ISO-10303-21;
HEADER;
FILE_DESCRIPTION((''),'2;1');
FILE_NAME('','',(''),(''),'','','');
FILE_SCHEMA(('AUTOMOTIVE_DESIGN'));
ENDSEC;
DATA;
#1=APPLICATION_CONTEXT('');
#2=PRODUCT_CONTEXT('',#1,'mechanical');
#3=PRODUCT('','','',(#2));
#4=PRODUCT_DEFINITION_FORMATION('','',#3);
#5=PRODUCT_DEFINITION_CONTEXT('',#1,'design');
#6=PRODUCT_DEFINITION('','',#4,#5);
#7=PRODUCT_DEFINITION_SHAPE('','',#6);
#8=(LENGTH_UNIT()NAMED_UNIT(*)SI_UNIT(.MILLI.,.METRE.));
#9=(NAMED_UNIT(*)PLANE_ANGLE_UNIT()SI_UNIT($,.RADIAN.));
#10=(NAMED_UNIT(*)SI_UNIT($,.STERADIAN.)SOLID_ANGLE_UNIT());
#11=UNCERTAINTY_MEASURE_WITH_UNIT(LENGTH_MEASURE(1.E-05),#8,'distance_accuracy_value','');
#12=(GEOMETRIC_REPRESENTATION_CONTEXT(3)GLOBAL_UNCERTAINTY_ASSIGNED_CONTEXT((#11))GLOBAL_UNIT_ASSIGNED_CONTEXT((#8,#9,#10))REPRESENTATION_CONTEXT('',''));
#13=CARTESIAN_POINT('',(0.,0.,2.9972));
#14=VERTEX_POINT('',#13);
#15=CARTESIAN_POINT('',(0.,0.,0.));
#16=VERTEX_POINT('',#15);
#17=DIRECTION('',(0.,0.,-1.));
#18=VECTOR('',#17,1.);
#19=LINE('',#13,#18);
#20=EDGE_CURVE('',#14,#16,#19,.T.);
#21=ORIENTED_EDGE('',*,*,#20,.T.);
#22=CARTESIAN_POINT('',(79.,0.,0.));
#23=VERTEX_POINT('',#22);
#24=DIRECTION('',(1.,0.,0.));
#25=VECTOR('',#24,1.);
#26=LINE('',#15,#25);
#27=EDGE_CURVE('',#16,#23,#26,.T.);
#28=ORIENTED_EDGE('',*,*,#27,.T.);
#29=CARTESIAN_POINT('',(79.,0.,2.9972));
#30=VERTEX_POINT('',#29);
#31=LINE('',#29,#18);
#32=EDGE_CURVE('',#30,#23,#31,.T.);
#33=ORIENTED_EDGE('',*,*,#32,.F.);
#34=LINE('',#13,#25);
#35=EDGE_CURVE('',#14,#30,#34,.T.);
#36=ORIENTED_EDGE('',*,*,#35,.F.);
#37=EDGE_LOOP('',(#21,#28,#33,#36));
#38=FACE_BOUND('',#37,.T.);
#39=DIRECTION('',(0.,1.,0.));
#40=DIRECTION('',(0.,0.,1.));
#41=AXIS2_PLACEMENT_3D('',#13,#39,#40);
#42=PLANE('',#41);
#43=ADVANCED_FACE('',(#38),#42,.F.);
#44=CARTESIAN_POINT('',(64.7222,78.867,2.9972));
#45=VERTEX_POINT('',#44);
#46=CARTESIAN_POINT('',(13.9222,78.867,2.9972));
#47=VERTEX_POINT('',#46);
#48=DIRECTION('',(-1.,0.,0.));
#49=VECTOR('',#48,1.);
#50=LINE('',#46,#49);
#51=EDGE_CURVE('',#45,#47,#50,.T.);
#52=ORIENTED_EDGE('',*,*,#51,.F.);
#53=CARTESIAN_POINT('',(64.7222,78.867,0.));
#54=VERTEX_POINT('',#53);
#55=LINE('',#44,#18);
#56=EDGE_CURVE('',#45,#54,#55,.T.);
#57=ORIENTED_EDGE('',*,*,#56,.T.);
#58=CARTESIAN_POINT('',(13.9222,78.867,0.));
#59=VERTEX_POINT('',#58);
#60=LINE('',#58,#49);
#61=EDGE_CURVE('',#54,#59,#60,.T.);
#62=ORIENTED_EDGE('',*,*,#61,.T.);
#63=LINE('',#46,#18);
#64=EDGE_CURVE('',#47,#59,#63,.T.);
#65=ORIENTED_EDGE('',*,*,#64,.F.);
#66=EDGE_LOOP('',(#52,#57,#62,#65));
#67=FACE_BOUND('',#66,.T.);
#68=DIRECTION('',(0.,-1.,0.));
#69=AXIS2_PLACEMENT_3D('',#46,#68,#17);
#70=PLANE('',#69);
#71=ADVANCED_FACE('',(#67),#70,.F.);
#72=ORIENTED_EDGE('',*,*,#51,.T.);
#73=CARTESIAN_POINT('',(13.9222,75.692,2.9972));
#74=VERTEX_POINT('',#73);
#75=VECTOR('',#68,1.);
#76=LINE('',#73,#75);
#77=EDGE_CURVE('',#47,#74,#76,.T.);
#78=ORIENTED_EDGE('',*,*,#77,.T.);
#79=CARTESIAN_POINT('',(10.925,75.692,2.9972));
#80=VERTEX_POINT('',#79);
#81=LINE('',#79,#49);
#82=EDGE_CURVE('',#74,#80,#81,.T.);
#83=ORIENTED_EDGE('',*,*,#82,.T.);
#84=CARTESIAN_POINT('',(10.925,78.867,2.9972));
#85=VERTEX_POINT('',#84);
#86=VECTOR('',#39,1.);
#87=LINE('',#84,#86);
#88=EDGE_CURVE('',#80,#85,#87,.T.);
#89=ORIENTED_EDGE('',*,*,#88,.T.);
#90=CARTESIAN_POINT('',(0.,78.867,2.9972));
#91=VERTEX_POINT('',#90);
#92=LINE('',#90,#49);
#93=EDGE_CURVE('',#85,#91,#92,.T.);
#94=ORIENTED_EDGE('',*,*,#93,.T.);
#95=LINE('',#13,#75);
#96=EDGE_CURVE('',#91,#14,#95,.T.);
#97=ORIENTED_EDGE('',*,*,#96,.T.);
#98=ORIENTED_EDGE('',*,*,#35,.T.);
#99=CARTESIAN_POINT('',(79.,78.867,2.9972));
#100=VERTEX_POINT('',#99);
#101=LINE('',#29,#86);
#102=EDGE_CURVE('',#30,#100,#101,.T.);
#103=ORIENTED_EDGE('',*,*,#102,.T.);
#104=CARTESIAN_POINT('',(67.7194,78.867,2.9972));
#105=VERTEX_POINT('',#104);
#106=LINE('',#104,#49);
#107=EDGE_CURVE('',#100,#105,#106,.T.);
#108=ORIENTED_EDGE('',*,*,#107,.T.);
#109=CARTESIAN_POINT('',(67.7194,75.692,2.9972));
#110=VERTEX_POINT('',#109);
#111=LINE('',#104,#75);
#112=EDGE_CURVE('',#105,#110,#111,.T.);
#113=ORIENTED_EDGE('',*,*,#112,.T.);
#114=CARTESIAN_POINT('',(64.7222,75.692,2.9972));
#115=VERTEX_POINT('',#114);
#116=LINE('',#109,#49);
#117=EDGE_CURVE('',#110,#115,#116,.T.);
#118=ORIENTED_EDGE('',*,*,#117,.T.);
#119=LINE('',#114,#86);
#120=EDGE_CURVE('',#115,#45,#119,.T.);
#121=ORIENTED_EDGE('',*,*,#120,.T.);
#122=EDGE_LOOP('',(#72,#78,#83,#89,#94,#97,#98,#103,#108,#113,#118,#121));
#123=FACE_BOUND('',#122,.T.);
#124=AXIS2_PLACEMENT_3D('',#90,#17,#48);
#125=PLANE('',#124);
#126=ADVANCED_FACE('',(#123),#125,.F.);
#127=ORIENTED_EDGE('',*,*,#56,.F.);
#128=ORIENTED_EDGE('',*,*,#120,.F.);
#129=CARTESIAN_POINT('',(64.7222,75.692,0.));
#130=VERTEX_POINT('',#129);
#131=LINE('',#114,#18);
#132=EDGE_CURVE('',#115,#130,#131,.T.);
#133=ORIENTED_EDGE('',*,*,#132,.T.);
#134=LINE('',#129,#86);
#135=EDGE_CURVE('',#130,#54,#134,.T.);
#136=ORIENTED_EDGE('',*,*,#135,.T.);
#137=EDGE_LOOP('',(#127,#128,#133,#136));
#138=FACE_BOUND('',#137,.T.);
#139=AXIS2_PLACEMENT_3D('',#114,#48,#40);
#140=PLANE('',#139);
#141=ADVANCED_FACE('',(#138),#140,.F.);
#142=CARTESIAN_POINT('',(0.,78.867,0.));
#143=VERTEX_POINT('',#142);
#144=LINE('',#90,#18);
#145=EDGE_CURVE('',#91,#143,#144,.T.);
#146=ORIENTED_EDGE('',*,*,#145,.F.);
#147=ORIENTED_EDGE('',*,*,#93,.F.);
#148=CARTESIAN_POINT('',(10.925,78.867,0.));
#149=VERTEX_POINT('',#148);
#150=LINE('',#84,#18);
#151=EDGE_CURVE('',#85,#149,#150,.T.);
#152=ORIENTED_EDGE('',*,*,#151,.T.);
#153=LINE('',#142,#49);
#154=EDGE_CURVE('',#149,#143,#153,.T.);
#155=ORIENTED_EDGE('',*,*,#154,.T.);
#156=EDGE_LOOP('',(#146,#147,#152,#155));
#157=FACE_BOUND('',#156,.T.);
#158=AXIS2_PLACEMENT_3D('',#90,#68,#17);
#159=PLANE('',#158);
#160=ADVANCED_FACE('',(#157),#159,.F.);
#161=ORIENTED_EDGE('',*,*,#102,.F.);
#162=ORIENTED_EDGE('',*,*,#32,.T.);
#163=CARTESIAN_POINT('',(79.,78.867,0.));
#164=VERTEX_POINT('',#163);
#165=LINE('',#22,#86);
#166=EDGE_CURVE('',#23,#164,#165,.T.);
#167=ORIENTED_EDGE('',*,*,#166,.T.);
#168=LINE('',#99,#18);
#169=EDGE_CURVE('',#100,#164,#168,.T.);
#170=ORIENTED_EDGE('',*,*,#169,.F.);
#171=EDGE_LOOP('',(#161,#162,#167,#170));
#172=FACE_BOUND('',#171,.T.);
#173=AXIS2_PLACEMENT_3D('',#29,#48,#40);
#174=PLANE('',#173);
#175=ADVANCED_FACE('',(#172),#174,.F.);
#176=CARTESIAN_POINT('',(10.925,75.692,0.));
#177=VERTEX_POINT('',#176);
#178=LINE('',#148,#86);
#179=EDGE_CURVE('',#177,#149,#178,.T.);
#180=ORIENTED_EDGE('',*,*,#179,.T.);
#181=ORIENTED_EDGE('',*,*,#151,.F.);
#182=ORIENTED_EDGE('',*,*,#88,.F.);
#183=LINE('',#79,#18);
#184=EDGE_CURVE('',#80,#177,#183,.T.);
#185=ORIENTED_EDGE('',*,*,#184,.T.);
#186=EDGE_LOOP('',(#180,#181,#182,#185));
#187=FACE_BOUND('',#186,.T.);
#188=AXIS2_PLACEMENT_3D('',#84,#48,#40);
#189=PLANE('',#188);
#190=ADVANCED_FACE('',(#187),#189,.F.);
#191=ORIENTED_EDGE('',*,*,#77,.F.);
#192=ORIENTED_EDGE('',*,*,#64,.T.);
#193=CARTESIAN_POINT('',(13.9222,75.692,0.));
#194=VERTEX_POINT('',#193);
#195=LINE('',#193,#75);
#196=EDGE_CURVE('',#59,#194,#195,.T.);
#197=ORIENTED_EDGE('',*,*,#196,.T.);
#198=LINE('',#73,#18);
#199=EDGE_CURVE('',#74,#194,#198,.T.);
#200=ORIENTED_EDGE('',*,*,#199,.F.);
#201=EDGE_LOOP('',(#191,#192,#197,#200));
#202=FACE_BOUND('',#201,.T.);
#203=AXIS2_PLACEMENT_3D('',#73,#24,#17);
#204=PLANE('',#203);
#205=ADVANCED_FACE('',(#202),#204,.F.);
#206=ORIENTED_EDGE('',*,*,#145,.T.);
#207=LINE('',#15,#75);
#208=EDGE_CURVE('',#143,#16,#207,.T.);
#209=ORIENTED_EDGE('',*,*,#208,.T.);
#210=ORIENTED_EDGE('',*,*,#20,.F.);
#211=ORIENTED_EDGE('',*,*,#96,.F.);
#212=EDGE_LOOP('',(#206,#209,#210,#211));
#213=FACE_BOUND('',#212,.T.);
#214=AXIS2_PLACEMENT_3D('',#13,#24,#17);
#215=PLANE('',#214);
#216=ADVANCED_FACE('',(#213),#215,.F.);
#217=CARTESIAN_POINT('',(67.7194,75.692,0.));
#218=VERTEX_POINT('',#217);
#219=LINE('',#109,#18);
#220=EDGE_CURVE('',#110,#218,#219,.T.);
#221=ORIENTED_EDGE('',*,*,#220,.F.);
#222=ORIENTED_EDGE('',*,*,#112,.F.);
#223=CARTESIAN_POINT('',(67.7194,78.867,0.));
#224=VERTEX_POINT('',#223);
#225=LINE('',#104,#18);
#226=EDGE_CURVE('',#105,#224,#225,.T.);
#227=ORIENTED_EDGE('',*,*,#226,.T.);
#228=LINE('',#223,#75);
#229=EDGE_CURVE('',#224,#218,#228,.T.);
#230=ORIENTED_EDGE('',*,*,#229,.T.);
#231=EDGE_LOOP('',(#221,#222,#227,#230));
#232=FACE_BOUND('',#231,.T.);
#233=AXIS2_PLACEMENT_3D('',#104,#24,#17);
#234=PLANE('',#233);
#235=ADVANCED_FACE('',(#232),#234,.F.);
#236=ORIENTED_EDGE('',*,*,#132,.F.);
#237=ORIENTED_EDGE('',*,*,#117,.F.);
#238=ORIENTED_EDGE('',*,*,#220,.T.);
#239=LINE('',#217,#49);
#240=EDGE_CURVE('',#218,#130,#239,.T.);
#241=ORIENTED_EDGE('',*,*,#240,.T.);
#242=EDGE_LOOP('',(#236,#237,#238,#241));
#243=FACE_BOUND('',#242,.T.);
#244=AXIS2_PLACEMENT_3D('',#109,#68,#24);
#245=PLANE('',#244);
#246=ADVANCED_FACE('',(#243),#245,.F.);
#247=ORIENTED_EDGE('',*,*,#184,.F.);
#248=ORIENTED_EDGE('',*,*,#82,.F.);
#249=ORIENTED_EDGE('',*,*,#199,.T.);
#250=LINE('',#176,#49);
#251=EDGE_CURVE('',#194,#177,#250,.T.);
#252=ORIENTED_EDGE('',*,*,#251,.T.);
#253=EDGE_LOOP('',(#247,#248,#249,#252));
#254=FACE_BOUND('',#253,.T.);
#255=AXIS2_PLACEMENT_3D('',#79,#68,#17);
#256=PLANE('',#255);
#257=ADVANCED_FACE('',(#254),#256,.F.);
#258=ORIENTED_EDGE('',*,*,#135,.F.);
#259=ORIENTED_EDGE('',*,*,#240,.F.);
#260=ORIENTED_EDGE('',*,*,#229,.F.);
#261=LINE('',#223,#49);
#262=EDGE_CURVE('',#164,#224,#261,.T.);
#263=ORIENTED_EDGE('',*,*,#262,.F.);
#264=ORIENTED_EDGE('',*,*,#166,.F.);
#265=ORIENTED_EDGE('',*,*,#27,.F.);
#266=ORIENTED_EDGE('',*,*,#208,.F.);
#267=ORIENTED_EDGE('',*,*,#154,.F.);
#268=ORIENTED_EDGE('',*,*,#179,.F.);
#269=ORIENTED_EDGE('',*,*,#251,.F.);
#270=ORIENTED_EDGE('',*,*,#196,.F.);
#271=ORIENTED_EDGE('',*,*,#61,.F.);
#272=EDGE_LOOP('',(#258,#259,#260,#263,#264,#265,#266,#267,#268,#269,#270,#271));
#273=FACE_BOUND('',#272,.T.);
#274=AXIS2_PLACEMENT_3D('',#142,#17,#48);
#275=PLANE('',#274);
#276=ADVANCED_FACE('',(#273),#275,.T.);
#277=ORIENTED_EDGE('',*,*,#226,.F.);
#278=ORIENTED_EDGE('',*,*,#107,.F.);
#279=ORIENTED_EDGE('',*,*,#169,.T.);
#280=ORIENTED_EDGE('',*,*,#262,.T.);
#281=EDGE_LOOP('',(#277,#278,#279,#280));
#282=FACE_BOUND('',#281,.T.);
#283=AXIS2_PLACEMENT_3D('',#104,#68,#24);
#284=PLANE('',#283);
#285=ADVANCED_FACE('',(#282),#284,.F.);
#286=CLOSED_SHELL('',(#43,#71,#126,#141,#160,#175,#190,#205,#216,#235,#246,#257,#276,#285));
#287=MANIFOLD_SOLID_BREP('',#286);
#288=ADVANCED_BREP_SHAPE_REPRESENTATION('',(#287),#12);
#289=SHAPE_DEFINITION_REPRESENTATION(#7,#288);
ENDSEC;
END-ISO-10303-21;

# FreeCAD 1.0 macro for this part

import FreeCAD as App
import Part
import Sketcher
Q = App.Units.Quantity

doc = App.newDocument("Part")
body = doc.addObject("PartDesign::Body", "Body")

sketch1 = body.newObject("Sketcher::SketchObject", "Sketch")
sketch1.AttachmentSupport = (doc.getObject("XY_Plane"), [""])
sketch1.MapMode = "FlatFace"
sketch1.addGeometry([
    Part.LineSegment(App.Vector(10.9, 75.7, 0), App.Vector(10.9, 78.9, 0)),
    Part.LineSegment(App.Vector(10.9, 78.9, 0), App.Vector(0, 78.9, 0)),
    Part.LineSegment(App.Vector(0, 78.9, 0), App.Vector(0, 0, 0)),
    Part.LineSegment(App.Vector(0, 0, 0), App.Vector(79, 0, 0)),
    Part.LineSegment(App.Vector(79, 0, 0), App.Vector(79, 78.9, 0)),
    Part.LineSegment(App.Vector(79, 78.9, 0), App.Vector(67.7, 78.9, 0)),
    Part.LineSegment(App.Vector(67.7, 78.9, 0), App.Vector(67.7, 75.7, 0)),
    Part.LineSegment(App.Vector(67.7, 75.7, 0), App.Vector(64.7, 75.7, 0)),
    Part.LineSegment(App.Vector(64.7, 75.7, 0), App.Vector(64.7, 78.9, 0)),
    Part.LineSegment(App.Vector(64.7, 78.9, 0), App.Vector(13.9, 78.9, 0)),
    Part.LineSegment(App.Vector(13.9, 78.9, 0), App.Vector(13.9, 75.7, 0)),
    Part.LineSegment(App.Vector(13.9, 75.7, 0), App.Vector(10.9, 75.7, 0)),
], False)
sketch1.addConstraint([
    Sketcher.Constraint("Coincident", 0, 2, 1, 1),
    Sketcher.Constraint("Coincident", 1, 2, 2, 1),
    Sketcher.Constraint("Coincident", 2, 2, 3, 1),
    Sketcher.Constraint("Coincident", 3, 2, 4, 1),
    Sketcher.Constraint("Coincident", 4, 2, 5, 1),
    Sketcher.Constraint("Coincident", 5, 2, 6, 1),
    Sketcher.Constraint("Coincident", 6, 2, 7, 1),
    Sketcher.Constraint("Coincident", 7, 2, 8, 1),
    Sketcher.Constraint("Coincident", 8, 2, 9, 1),
    Sketcher.Constraint("Coincident", 9, 2, 10, 1),
    Sketcher.Constraint("Coincident", 10, 2, 11, 1),
    Sketcher.Constraint("Coincident", 11, 2, 0, 1),
    Sketcher.Constraint("Vertical", 0),
    Sketcher.Constraint("Horizontal", 1),
    Sketcher.Constraint("Vertical", 2),
    Sketcher.Constraint("Horizontal", 3),
    Sketcher.Constraint("Vertical", 4),
    Sketcher.Constraint("Horizontal", 5),
    Sketcher.Constraint("Vertical", 6),
    Sketcher.Constraint("Horizontal", 7),
    Sketcher.Constraint("Vertical", 8),
    Sketcher.Constraint("Horizontal", 9),
    Sketcher.Constraint("Vertical", 10),
    Sketcher.Constraint("Horizontal", 11),
    Sketcher.Constraint("Coincident", 2, 2, -1, 1),
    Sketcher.Constraint("Horizontal", 1, 2, 4, 2),
    Sketcher.Constraint("Horizontal", 5, 2, 8, 2),
    Sketcher.Constraint("Horizontal", 7, 2, 10, 2),
    Sketcher.Constraint("Equal", 7, 11),
    Sketcher.Constraint("DistanceX", 9, 2, 9, 1, Q("2 in")),
    Sketcher.Constraint("DistanceX", 7, 2, 7, 1, Q("0.118 in")),
    Sketcher.Constraint("DistanceY", 0, 1, 0, 2, Q("0.125 in")),
    Sketcher.Constraint("DistanceY", 2, 2, 2, 1, Q("3.105 in")),
    Sketcher.Constraint("DistanceX", 1, 2, 1, 1, 10.925),
    Sketcher.Constraint("DistanceX", 3, 1, 3, 2, 79.0),
])
pad1 = body.newObject("PartDesign::Pad", "Pad")
pad1.Profile = sketch1
pad1.Length = Q("0.118 in")

doc.recompute()
